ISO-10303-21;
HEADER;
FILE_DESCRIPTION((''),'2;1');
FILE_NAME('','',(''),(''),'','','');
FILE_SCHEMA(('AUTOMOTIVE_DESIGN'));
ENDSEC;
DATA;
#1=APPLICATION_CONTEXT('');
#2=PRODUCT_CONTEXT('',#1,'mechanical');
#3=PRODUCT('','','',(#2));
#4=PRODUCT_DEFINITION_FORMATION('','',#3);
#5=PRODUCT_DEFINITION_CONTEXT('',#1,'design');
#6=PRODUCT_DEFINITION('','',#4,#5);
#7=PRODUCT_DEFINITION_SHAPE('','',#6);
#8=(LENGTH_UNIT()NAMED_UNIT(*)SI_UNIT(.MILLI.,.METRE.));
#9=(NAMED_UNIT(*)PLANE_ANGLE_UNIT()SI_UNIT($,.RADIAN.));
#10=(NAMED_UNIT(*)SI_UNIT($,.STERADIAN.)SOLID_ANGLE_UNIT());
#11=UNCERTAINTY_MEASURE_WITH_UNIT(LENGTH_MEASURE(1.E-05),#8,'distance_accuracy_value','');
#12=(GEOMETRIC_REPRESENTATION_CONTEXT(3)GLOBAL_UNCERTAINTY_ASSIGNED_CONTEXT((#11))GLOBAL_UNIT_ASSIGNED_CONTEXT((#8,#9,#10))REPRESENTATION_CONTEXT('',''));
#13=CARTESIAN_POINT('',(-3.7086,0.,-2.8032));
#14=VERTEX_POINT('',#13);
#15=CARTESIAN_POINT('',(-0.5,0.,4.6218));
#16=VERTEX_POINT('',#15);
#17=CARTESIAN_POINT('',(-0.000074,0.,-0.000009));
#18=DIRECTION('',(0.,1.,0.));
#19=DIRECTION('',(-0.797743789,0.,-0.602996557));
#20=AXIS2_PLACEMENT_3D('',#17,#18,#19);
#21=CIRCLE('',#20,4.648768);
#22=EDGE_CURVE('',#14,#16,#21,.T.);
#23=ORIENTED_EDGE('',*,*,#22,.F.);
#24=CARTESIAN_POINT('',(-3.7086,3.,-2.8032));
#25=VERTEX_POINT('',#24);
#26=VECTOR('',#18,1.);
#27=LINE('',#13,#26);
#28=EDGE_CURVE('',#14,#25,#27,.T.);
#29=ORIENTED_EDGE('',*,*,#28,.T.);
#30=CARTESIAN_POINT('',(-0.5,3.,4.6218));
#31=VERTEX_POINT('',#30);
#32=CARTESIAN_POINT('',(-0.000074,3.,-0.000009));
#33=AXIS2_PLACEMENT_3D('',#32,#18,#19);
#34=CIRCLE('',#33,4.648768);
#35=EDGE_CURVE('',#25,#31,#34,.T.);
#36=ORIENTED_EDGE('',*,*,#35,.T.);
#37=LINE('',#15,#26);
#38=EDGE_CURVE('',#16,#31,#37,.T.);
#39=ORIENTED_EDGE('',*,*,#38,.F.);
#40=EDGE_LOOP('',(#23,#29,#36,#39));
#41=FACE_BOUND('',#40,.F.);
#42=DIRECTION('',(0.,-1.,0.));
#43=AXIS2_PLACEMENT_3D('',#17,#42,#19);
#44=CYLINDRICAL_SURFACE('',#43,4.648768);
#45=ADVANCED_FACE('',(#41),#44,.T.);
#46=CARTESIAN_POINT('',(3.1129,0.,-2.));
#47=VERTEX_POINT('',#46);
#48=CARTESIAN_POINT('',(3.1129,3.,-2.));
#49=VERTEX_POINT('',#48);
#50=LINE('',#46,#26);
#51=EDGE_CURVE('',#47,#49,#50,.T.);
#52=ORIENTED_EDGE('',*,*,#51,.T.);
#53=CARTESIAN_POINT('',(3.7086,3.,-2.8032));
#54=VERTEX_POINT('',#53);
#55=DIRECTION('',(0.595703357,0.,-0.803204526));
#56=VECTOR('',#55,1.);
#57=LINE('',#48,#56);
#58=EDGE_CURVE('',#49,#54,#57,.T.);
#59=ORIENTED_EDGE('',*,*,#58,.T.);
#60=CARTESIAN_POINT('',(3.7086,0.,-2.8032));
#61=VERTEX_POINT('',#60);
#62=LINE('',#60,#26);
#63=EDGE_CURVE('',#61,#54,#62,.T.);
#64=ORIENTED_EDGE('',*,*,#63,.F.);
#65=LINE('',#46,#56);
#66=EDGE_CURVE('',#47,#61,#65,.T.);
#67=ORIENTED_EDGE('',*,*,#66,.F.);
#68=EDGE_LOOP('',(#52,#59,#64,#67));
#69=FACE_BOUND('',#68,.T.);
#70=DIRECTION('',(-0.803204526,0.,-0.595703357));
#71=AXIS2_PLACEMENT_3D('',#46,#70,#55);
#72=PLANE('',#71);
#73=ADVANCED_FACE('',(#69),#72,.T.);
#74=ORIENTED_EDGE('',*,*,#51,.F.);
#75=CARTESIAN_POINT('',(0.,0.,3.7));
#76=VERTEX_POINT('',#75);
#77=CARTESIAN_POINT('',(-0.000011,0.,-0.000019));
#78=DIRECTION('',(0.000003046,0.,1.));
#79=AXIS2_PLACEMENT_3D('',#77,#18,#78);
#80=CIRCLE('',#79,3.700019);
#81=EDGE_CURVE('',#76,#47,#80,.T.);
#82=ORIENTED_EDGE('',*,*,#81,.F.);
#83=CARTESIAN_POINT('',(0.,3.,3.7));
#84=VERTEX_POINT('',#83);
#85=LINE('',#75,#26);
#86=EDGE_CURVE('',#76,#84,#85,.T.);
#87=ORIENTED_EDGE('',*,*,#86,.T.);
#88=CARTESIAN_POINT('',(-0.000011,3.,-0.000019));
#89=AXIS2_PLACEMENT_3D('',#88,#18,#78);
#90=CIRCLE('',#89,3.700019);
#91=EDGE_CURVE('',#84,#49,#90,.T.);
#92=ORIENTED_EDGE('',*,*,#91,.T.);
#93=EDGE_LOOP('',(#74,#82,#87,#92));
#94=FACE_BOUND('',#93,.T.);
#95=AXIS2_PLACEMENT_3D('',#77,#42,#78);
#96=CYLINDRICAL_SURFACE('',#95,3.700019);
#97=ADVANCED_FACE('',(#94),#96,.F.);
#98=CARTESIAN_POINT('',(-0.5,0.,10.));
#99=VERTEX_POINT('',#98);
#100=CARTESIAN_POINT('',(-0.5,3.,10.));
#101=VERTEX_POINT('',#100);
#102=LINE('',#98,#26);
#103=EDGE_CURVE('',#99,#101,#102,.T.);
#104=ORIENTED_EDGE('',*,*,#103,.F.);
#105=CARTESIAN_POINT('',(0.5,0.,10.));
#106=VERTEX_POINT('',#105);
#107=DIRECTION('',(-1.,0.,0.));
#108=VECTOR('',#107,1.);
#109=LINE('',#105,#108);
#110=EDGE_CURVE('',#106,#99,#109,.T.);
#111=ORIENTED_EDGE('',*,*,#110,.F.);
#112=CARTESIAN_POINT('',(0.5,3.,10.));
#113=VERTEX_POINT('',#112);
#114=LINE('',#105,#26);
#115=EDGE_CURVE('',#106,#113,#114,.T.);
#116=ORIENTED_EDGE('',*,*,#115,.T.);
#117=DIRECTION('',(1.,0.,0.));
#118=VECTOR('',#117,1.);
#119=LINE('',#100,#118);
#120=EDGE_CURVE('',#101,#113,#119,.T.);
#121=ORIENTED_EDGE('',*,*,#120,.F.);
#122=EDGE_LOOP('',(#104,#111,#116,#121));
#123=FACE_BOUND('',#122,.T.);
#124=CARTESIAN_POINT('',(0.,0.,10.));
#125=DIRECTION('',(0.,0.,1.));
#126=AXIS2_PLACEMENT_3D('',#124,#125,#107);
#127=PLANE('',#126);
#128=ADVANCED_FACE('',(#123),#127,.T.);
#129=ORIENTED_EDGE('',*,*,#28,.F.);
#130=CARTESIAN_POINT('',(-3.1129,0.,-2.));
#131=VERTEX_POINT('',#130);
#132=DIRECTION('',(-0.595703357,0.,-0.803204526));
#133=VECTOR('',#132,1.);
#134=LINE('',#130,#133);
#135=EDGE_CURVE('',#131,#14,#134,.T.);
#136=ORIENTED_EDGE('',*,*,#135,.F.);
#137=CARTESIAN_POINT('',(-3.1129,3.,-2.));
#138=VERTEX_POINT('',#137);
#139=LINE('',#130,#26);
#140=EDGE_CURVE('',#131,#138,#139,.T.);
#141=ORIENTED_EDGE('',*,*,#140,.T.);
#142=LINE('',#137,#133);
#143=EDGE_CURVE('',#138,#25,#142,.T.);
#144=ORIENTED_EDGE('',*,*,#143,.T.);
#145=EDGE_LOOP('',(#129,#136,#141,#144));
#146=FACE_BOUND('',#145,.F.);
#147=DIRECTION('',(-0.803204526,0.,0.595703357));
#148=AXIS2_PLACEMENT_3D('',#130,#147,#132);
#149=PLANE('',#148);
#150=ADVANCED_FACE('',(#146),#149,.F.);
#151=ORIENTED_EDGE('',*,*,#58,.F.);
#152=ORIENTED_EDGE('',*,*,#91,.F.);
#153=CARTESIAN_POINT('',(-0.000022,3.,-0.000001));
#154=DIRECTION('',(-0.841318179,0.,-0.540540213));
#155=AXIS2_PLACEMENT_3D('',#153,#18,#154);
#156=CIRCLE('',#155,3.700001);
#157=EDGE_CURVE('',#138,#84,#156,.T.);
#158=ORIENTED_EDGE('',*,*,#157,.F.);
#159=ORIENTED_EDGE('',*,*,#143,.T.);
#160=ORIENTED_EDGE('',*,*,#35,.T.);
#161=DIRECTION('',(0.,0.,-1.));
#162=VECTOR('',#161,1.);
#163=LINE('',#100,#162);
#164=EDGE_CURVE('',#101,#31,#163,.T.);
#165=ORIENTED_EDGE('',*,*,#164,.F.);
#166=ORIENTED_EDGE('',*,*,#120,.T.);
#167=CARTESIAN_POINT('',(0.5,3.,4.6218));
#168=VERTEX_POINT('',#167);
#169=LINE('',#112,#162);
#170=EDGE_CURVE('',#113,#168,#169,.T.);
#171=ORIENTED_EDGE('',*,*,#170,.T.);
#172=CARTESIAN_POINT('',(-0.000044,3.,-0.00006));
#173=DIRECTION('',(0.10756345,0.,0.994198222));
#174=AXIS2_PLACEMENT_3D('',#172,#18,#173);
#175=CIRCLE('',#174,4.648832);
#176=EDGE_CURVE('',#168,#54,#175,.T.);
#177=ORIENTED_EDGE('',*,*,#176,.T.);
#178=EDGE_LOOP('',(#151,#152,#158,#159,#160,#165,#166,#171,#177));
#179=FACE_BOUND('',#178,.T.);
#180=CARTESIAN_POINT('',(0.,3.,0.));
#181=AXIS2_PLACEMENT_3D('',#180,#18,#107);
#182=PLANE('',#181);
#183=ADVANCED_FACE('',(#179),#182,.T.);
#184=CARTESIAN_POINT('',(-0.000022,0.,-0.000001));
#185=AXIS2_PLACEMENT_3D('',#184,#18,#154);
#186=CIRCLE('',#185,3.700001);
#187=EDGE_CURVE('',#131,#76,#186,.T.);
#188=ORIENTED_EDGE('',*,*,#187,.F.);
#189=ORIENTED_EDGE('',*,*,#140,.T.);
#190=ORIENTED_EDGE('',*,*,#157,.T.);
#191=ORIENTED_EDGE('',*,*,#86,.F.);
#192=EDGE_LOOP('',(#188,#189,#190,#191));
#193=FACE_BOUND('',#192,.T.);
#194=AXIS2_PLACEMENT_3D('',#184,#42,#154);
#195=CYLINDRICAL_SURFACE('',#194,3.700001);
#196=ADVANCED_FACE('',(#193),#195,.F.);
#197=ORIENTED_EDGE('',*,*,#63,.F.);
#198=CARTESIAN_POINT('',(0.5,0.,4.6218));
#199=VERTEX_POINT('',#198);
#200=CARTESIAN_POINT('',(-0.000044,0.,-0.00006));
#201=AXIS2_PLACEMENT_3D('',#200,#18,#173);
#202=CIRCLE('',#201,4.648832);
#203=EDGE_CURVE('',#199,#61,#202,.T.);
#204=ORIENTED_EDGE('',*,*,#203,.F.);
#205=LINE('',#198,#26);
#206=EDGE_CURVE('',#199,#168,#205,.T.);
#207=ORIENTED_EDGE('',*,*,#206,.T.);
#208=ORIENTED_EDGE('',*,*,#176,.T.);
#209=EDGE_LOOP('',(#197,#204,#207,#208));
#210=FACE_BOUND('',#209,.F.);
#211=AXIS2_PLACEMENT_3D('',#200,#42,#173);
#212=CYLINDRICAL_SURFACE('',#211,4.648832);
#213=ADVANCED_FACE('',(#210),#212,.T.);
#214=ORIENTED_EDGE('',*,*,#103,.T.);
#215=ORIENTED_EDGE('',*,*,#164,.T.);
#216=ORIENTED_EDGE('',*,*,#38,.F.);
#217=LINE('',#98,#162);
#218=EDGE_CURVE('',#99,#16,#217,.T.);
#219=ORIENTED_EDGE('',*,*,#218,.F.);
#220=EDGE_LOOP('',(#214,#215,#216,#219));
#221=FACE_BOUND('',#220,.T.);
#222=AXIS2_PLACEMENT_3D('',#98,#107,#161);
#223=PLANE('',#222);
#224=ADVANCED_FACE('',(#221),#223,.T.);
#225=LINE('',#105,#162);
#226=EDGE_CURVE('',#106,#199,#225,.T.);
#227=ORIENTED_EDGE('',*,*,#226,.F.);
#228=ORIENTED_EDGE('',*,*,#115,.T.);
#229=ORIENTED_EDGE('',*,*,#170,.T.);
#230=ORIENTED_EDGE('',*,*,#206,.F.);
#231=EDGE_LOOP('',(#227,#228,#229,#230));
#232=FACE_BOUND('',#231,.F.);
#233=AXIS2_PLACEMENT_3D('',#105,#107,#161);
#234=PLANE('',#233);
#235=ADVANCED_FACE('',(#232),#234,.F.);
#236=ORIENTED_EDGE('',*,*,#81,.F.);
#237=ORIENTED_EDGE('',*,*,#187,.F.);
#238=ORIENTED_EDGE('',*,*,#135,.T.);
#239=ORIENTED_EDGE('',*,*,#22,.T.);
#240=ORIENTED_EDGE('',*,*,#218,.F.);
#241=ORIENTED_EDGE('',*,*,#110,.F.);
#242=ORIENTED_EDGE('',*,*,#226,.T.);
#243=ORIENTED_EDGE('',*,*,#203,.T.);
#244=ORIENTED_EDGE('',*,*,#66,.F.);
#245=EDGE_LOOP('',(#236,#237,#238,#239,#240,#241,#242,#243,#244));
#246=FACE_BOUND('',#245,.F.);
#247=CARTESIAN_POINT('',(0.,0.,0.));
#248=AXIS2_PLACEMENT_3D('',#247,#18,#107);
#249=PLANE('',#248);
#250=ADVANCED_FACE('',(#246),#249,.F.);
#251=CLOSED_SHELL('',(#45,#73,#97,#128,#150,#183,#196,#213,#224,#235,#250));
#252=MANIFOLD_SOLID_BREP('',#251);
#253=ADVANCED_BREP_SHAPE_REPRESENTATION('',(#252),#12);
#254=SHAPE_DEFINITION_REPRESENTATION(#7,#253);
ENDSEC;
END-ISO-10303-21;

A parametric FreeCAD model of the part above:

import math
import FreeCAD as App
import Part
import Sketcher

V = App.Vector
Q = App.Units.Quantity

doc = App.newDocument("Part")
body = doc.addObject("PartDesign::Body", "Body")

# Sketch on XZ plane
sketch1 = body.newObject("Sketcher::SketchObject", "Sketch")
sketch1.AttachmentSupport = (doc.getObject("XZ_Plane"), [""])
sketch1.MapMode = "FlatFace"
sketch1.addGeometry([
    Part.ArcOfCircle(Part.Circle(V(0, 0, 0), V(0, 0, 1), 3.7), math.radians(90), math.radians(213)),  # 0
    Part.LineSegment(V(-3.1, -2, 0), V(-3.7, -2.8, 0)),  # 1
    Part.ArcOfCircle(Part.Circle(V(0, 0, 0), V(0, 0, 1), 4.6), math.radians(96), math.radians(217)),  # 2
    Part.LineSegment(V(-0.5, 4.6, 0), V(-0.5, 10, 0)),  # 3
    Part.LineSegment(V(-0.5, 10, 0), V(0.5, 10, 0)),  # 4
    Part.LineSegment(V(0.5, 10, 0), V(0.5, 4.6, 0)),  # 5
    Part.ArcOfCircle(Part.Circle(V(0, 0, 0), V(0, 0, 1), 4.6), math.radians(-37), math.radians(84)),  # 6
    Part.LineSegment(V(3.7, -2.8, 0), V(3.1, -2, 0)),  # 7
    Part.ArcOfCircle(Part.Circle(V(0, 0, 0), V(0, 0, 1), 3.7), math.radians(-33), math.radians(90)),  # 8
], False)
sketch1.addConstraint([
    Sketcher.Constraint("Coincident", 0, 2, 1, 1),
    Sketcher.Constraint("Coincident", 1, 2, 2, 2),
    Sketcher.Constraint("Coincident", 2, 1, 3, 1),
    Sketcher.Constraint("Coincident", 3, 2, 4, 1),
    Sketcher.Constraint("Coincident", 4, 2, 5, 1),
    Sketcher.Constraint("Coincident", 5, 2, 6, 2),
    Sketcher.Constraint("Coincident", 6, 1, 7, 1),
    Sketcher.Constraint("Coincident", 7, 2, 8, 1),
    Sketcher.Constraint("Tangent", 8, 2, 0, 1),
    Sketcher.Constraint("Vertical", 3),
    Sketcher.Constraint("Horizontal", 4),
    Sketcher.Constraint("Vertical", 5),
    Sketcher.Constraint("Coincident", 0, 3, -1, 1),
    Sketcher.Constraint("Coincident", 2, 3, -1, 1),
    Sketcher.Constraint("Coincident", 6, 3, -1, 1),
    Sketcher.Constraint("Equal", 2, 6),
    Sketcher.Constraint("Equal", 0, 8),
    Sketcher.Constraint("PointOnObject", 8, 2, -2),
    Sketcher.Constraint("Horizontal", 2, 1, 5, 2),
    Sketcher.Constraint("Horizontal", 1, 2, 6, 1),
    Sketcher.Constraint("Horizontal", 0, 2, 7, 2),
    Sketcher.Constraint("Radius", 0, Q("3.7 mm")),
    Sketcher.Constraint("DistanceX", 4, 1, 4, 2, Q("1 mm")),
    Sketcher.Constraint("Distance", 1, Q("1 mm")),
    Sketcher.Constraint("DistanceY", -1, 1, 3, 2, Q("10 mm")),
    Sketcher.Constraint("DistanceY", 0, 2, -1, 1, Q("2 mm")),
    Sketcher.Constraint("Radius", 2, Q("4.6488 mm")),
])
pad1 = body.newObject("PartDesign::Pad", "Pad")
pad1.Profile = sketch1
pad1.Length = 3
pad1.Reversed = True

doc.recompute()
